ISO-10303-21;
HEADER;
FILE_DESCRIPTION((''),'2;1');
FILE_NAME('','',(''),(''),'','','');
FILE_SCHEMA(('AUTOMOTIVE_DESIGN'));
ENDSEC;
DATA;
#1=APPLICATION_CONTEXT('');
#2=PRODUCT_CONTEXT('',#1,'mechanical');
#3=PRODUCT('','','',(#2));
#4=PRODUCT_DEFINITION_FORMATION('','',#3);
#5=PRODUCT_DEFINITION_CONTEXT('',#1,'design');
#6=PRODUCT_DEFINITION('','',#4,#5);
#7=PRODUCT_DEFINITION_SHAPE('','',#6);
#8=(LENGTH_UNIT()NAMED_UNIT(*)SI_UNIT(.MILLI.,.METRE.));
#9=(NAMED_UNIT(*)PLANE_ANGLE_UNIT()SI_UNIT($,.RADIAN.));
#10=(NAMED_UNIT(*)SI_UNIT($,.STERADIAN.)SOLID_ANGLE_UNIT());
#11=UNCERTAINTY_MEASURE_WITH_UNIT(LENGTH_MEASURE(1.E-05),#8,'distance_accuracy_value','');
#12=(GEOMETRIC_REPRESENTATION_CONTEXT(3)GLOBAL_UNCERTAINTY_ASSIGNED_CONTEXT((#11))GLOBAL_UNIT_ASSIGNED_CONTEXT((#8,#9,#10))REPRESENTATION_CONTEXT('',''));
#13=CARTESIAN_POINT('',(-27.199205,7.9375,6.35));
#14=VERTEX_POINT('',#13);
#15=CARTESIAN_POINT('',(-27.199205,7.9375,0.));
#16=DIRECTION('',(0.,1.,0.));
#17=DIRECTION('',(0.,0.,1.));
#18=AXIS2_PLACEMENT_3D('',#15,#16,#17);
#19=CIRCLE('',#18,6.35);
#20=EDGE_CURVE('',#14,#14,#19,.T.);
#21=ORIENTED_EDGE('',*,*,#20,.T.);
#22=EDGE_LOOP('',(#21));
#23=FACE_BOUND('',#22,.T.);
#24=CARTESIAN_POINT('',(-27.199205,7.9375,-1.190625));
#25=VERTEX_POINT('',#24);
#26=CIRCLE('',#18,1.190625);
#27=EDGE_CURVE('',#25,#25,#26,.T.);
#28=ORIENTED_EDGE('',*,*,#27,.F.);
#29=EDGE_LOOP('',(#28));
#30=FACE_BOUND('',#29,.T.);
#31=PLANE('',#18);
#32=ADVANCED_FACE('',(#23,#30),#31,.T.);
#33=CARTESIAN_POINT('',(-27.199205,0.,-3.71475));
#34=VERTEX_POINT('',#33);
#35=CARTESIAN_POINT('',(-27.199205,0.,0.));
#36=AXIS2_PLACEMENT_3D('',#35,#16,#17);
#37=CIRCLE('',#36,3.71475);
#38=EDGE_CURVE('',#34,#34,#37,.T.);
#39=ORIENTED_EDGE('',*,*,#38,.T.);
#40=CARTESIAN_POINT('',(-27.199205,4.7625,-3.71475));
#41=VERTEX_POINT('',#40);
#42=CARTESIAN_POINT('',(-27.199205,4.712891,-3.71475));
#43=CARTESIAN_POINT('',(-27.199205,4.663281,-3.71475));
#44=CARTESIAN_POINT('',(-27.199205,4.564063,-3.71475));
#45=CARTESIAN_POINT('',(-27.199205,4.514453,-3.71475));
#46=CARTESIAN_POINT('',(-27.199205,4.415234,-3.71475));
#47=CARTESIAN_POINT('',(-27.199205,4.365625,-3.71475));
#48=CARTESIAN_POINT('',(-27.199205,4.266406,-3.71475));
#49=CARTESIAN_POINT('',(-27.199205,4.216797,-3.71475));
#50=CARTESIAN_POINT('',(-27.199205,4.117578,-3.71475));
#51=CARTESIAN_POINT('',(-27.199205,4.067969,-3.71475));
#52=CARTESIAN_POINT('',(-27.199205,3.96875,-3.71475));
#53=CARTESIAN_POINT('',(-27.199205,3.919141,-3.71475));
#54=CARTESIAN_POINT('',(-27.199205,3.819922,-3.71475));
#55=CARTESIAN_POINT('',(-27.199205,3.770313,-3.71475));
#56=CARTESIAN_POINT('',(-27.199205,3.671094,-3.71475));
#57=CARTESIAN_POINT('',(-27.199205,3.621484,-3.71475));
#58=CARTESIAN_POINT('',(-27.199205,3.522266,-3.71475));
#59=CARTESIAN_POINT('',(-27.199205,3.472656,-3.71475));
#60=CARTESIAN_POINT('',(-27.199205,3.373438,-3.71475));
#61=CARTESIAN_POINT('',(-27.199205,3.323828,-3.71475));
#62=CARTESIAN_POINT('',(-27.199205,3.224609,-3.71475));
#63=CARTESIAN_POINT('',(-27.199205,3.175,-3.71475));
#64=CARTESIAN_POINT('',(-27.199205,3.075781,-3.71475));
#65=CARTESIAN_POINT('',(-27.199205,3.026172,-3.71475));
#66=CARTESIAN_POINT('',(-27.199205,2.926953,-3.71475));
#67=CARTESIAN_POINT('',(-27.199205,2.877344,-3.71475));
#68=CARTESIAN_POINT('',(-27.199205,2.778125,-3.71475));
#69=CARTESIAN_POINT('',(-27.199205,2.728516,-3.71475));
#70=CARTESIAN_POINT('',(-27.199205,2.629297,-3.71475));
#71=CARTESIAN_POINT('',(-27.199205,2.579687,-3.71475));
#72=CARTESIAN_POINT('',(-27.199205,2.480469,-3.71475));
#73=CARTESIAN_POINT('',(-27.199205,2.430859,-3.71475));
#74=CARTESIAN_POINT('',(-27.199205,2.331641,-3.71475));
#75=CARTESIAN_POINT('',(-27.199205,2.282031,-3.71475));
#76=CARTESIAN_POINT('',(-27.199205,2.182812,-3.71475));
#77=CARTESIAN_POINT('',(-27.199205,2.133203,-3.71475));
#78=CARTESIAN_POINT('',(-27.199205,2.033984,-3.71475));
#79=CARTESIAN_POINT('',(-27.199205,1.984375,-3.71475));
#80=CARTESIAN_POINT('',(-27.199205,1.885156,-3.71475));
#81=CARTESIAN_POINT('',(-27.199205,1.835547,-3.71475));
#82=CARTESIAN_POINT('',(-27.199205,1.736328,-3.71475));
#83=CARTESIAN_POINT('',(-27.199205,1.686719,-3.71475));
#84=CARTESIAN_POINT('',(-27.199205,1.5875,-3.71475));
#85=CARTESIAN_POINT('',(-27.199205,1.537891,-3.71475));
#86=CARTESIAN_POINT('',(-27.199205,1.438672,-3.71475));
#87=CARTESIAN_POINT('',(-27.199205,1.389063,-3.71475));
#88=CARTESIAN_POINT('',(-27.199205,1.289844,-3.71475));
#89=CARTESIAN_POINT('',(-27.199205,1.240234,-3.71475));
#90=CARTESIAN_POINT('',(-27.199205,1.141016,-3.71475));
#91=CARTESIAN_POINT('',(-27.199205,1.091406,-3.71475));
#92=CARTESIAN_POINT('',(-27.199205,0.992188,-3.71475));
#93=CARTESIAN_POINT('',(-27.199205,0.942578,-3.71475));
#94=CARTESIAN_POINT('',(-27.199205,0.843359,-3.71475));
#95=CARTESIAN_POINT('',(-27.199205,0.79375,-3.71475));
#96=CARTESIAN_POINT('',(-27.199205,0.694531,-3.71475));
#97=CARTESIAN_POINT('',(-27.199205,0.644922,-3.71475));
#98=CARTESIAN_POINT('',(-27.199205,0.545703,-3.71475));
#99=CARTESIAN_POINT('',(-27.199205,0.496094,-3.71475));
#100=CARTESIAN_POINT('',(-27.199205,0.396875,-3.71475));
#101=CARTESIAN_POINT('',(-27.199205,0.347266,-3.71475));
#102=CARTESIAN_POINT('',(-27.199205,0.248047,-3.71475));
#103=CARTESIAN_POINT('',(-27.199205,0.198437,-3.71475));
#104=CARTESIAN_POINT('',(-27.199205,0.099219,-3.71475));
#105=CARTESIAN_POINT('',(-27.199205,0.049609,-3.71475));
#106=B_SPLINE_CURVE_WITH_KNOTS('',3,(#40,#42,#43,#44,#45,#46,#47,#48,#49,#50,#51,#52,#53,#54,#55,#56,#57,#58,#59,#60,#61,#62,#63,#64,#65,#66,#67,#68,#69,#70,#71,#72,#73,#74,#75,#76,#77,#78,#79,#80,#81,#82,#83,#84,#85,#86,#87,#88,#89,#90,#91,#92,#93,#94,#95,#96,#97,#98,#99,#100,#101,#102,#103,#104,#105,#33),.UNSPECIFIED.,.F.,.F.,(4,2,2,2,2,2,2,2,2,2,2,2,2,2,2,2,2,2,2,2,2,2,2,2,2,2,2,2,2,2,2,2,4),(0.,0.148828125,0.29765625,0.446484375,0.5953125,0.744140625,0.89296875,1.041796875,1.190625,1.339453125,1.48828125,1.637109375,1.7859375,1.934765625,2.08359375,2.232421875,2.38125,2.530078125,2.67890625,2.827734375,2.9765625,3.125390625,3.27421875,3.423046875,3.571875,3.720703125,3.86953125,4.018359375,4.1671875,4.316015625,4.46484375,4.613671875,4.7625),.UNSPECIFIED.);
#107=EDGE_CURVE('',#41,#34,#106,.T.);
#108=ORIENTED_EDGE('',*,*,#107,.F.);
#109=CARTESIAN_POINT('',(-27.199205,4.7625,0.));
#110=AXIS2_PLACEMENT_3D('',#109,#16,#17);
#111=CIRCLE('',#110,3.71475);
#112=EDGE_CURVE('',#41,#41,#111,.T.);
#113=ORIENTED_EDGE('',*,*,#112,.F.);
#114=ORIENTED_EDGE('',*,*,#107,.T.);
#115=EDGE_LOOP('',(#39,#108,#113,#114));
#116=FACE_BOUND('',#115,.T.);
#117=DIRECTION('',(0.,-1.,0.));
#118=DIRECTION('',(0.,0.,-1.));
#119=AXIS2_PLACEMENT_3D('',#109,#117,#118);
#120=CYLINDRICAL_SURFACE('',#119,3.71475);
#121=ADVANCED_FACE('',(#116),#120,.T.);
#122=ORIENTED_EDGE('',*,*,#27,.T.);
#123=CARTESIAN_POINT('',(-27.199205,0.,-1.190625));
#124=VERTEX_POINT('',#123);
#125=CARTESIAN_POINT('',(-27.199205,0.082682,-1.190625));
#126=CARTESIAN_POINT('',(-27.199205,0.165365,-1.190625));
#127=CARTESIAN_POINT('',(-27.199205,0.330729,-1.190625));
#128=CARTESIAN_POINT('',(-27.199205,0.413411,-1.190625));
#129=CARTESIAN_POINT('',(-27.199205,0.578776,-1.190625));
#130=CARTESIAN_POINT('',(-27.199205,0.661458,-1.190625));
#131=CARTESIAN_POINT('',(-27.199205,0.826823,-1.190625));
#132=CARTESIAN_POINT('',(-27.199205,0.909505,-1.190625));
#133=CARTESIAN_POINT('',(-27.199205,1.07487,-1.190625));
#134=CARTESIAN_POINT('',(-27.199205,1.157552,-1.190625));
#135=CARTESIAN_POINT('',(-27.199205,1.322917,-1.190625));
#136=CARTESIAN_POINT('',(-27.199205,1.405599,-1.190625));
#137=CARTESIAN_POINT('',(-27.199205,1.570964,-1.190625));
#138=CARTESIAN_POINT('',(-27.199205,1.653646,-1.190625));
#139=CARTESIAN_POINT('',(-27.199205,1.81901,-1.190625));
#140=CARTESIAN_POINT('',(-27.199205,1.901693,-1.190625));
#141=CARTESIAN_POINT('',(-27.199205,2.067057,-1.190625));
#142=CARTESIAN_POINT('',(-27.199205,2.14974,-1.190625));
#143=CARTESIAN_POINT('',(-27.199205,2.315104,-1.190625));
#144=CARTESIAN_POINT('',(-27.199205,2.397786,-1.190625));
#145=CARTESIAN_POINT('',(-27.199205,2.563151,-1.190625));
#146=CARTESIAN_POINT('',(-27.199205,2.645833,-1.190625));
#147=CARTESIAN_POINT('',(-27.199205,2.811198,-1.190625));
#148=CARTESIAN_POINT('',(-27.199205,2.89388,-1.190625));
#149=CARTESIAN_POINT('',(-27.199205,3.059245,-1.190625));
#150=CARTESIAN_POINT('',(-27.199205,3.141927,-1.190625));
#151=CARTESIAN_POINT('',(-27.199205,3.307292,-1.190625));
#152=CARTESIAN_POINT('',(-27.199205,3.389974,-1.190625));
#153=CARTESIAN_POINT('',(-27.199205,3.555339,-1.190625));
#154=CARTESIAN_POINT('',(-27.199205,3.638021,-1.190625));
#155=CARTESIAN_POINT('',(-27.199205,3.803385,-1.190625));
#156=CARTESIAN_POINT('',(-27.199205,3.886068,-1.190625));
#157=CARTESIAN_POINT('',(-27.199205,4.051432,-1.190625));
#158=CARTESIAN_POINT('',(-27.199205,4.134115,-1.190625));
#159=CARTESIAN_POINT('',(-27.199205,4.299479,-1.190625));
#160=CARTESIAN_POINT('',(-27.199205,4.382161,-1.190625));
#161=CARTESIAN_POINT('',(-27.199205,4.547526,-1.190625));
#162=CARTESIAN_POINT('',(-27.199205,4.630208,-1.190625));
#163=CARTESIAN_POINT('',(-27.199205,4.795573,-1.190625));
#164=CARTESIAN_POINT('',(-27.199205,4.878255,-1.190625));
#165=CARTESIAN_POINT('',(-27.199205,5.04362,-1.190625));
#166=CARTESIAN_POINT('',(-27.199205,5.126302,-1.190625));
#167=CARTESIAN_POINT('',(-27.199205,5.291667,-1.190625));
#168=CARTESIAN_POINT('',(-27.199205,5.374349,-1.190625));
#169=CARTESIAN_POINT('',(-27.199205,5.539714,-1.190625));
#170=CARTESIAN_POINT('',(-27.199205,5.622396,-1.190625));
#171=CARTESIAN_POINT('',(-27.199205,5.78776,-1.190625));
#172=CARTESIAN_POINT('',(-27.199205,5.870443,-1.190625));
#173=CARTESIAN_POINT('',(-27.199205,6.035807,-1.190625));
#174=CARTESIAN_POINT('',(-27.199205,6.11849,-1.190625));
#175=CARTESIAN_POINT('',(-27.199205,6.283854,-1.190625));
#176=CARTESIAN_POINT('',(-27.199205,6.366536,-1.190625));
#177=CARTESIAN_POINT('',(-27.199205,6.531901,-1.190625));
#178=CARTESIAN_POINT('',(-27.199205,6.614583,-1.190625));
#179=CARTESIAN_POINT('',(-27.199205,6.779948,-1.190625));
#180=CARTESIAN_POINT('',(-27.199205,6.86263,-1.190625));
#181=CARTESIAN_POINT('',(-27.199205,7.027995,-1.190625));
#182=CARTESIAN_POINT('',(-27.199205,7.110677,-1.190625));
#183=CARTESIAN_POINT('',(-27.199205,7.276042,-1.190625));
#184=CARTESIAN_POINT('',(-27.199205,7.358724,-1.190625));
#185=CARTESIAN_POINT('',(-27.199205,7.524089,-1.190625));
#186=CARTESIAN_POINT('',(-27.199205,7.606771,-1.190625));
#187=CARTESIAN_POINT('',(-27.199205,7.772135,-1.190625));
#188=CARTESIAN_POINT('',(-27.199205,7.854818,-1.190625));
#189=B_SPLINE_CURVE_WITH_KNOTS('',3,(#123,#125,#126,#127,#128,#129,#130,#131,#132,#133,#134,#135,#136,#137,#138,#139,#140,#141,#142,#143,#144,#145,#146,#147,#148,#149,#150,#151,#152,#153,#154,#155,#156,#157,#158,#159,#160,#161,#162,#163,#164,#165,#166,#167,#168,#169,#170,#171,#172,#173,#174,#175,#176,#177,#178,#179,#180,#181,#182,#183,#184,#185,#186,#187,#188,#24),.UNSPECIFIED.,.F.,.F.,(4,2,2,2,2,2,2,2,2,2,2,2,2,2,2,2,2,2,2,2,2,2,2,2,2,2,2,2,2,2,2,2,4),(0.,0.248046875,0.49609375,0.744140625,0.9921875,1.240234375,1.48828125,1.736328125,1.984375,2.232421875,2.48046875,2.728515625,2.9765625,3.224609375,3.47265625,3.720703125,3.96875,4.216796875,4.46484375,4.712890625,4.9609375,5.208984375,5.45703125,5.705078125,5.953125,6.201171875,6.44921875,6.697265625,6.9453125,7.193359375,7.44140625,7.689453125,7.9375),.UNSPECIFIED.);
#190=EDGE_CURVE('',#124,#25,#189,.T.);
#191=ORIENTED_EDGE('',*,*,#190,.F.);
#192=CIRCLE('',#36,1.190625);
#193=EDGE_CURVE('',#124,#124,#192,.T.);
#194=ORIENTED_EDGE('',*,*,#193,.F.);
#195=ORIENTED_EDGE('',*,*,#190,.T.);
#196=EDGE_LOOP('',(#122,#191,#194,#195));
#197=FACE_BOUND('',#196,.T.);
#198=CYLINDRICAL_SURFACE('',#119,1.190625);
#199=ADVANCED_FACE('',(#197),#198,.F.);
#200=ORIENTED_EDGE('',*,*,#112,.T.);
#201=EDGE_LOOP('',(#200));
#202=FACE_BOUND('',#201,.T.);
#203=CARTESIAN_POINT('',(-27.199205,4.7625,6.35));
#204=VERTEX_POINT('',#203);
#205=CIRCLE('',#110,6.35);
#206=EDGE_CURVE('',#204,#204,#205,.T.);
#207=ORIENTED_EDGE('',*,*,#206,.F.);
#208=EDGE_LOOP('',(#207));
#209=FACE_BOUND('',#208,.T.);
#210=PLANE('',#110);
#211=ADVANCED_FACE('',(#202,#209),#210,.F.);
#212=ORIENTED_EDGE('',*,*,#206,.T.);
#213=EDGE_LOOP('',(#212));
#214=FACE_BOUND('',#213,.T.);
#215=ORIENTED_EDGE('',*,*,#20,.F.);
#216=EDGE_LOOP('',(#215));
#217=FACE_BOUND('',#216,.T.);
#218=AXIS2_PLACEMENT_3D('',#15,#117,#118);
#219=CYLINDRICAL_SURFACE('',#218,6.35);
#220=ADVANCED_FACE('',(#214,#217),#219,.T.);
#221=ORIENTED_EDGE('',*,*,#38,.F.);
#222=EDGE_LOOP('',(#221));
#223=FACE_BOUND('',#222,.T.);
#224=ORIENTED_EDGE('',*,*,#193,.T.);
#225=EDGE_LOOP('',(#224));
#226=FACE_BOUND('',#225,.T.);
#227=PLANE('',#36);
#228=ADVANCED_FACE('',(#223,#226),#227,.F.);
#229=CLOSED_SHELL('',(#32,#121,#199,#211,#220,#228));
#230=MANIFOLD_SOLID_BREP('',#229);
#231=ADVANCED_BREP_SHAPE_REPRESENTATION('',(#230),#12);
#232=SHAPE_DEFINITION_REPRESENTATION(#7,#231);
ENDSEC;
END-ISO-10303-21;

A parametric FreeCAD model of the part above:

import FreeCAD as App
import Part
import Sketcher

V = App.Vector
Q = App.Units.Quantity

doc = App.newDocument("Part")
body = doc.addObject("PartDesign::Body", "Body")

sketch1 = doc.addObject("Sketcher::SketchObject", "Sketch")
body.addObject(sketch1)
sketch1.AttachmentSupport = (doc.XZ_Plane, [""])
sketch1.MapMode = "FlatFace"
sketch1.addGeometry(Part.Circle(V(-27.2, 0, 0), V(0, 0, 1), 3.7), False)
sketch1.addGeometry(Part.Circle(V(-27.2, 0, 0), V(0, 0, 1), 1.2), False)
sketch1.addConstraint(Sketcher.Constraint("Coincident", 1, 3, 0, 3))
sketch1.addConstraint(Sketcher.Constraint("PointOnObject", 0, 3, -1))
sketch1.addConstraint(Sketcher.Constraint("Diameter", 1, Q("0.09375 in")))
sketch1.addConstraint(Sketcher.Constraint("Diameter", 0, Q("0.2925 in")))
sketch1.addConstraint(Sketcher.Constraint("DistanceX", 0, 3, -1, 1, Q("27.199205 mm")))
pad1 = doc.addObject("PartDesign::Pad", "Pad")
body.addObject(pad1)
pad1.Profile = sketch1
pad1.Length = Q("0.1875 in")
pad1.Reversed = True

sketch2 = doc.addObject("Sketcher::SketchObject", "Sketch001")
body.addObject(sketch2)
sketch2.AttachmentSupport = (doc.XZ_Plane, [""])
sketch2.MapMode = "FlatFace"
sketch2.AttachmentOffset = App.Placement(V(0, 0, -0.1875 * 25.4), App.Rotation())
sketch2.addGeometry(Part.Circle(V(-27.2, 0, 0), V(0, 0, 1), 6.3), False)
sketch2.addGeometry(Part.Circle(V(-27.2, 0, 0), V(0, 0, 1), 1.2), False)
sketch2.addConstraint(Sketcher.Constraint("Coincident", 1, 3, 0, 3))
sketch2.addConstraint(Sketcher.Constraint("PointOnObject", 0, 3, -1))
sketch2.addConstraint(Sketcher.Constraint("Diameter", 0, Q("0.5 in")))
sketch2.addConstraint(Sketcher.Constraint("Diameter", 1, Q("0.09375 in")))
sketch2.addConstraint(Sketcher.Constraint("DistanceX", 0, 3, -1, 1, Q("27.199205 mm")))
pad2 = doc.addObject("PartDesign::Pad", "Pad001")
body.addObject(pad2)
pad2.Profile = sketch2
pad2.Length = Q("0.125 in")
pad2.Reversed = True

doc.recompute()
